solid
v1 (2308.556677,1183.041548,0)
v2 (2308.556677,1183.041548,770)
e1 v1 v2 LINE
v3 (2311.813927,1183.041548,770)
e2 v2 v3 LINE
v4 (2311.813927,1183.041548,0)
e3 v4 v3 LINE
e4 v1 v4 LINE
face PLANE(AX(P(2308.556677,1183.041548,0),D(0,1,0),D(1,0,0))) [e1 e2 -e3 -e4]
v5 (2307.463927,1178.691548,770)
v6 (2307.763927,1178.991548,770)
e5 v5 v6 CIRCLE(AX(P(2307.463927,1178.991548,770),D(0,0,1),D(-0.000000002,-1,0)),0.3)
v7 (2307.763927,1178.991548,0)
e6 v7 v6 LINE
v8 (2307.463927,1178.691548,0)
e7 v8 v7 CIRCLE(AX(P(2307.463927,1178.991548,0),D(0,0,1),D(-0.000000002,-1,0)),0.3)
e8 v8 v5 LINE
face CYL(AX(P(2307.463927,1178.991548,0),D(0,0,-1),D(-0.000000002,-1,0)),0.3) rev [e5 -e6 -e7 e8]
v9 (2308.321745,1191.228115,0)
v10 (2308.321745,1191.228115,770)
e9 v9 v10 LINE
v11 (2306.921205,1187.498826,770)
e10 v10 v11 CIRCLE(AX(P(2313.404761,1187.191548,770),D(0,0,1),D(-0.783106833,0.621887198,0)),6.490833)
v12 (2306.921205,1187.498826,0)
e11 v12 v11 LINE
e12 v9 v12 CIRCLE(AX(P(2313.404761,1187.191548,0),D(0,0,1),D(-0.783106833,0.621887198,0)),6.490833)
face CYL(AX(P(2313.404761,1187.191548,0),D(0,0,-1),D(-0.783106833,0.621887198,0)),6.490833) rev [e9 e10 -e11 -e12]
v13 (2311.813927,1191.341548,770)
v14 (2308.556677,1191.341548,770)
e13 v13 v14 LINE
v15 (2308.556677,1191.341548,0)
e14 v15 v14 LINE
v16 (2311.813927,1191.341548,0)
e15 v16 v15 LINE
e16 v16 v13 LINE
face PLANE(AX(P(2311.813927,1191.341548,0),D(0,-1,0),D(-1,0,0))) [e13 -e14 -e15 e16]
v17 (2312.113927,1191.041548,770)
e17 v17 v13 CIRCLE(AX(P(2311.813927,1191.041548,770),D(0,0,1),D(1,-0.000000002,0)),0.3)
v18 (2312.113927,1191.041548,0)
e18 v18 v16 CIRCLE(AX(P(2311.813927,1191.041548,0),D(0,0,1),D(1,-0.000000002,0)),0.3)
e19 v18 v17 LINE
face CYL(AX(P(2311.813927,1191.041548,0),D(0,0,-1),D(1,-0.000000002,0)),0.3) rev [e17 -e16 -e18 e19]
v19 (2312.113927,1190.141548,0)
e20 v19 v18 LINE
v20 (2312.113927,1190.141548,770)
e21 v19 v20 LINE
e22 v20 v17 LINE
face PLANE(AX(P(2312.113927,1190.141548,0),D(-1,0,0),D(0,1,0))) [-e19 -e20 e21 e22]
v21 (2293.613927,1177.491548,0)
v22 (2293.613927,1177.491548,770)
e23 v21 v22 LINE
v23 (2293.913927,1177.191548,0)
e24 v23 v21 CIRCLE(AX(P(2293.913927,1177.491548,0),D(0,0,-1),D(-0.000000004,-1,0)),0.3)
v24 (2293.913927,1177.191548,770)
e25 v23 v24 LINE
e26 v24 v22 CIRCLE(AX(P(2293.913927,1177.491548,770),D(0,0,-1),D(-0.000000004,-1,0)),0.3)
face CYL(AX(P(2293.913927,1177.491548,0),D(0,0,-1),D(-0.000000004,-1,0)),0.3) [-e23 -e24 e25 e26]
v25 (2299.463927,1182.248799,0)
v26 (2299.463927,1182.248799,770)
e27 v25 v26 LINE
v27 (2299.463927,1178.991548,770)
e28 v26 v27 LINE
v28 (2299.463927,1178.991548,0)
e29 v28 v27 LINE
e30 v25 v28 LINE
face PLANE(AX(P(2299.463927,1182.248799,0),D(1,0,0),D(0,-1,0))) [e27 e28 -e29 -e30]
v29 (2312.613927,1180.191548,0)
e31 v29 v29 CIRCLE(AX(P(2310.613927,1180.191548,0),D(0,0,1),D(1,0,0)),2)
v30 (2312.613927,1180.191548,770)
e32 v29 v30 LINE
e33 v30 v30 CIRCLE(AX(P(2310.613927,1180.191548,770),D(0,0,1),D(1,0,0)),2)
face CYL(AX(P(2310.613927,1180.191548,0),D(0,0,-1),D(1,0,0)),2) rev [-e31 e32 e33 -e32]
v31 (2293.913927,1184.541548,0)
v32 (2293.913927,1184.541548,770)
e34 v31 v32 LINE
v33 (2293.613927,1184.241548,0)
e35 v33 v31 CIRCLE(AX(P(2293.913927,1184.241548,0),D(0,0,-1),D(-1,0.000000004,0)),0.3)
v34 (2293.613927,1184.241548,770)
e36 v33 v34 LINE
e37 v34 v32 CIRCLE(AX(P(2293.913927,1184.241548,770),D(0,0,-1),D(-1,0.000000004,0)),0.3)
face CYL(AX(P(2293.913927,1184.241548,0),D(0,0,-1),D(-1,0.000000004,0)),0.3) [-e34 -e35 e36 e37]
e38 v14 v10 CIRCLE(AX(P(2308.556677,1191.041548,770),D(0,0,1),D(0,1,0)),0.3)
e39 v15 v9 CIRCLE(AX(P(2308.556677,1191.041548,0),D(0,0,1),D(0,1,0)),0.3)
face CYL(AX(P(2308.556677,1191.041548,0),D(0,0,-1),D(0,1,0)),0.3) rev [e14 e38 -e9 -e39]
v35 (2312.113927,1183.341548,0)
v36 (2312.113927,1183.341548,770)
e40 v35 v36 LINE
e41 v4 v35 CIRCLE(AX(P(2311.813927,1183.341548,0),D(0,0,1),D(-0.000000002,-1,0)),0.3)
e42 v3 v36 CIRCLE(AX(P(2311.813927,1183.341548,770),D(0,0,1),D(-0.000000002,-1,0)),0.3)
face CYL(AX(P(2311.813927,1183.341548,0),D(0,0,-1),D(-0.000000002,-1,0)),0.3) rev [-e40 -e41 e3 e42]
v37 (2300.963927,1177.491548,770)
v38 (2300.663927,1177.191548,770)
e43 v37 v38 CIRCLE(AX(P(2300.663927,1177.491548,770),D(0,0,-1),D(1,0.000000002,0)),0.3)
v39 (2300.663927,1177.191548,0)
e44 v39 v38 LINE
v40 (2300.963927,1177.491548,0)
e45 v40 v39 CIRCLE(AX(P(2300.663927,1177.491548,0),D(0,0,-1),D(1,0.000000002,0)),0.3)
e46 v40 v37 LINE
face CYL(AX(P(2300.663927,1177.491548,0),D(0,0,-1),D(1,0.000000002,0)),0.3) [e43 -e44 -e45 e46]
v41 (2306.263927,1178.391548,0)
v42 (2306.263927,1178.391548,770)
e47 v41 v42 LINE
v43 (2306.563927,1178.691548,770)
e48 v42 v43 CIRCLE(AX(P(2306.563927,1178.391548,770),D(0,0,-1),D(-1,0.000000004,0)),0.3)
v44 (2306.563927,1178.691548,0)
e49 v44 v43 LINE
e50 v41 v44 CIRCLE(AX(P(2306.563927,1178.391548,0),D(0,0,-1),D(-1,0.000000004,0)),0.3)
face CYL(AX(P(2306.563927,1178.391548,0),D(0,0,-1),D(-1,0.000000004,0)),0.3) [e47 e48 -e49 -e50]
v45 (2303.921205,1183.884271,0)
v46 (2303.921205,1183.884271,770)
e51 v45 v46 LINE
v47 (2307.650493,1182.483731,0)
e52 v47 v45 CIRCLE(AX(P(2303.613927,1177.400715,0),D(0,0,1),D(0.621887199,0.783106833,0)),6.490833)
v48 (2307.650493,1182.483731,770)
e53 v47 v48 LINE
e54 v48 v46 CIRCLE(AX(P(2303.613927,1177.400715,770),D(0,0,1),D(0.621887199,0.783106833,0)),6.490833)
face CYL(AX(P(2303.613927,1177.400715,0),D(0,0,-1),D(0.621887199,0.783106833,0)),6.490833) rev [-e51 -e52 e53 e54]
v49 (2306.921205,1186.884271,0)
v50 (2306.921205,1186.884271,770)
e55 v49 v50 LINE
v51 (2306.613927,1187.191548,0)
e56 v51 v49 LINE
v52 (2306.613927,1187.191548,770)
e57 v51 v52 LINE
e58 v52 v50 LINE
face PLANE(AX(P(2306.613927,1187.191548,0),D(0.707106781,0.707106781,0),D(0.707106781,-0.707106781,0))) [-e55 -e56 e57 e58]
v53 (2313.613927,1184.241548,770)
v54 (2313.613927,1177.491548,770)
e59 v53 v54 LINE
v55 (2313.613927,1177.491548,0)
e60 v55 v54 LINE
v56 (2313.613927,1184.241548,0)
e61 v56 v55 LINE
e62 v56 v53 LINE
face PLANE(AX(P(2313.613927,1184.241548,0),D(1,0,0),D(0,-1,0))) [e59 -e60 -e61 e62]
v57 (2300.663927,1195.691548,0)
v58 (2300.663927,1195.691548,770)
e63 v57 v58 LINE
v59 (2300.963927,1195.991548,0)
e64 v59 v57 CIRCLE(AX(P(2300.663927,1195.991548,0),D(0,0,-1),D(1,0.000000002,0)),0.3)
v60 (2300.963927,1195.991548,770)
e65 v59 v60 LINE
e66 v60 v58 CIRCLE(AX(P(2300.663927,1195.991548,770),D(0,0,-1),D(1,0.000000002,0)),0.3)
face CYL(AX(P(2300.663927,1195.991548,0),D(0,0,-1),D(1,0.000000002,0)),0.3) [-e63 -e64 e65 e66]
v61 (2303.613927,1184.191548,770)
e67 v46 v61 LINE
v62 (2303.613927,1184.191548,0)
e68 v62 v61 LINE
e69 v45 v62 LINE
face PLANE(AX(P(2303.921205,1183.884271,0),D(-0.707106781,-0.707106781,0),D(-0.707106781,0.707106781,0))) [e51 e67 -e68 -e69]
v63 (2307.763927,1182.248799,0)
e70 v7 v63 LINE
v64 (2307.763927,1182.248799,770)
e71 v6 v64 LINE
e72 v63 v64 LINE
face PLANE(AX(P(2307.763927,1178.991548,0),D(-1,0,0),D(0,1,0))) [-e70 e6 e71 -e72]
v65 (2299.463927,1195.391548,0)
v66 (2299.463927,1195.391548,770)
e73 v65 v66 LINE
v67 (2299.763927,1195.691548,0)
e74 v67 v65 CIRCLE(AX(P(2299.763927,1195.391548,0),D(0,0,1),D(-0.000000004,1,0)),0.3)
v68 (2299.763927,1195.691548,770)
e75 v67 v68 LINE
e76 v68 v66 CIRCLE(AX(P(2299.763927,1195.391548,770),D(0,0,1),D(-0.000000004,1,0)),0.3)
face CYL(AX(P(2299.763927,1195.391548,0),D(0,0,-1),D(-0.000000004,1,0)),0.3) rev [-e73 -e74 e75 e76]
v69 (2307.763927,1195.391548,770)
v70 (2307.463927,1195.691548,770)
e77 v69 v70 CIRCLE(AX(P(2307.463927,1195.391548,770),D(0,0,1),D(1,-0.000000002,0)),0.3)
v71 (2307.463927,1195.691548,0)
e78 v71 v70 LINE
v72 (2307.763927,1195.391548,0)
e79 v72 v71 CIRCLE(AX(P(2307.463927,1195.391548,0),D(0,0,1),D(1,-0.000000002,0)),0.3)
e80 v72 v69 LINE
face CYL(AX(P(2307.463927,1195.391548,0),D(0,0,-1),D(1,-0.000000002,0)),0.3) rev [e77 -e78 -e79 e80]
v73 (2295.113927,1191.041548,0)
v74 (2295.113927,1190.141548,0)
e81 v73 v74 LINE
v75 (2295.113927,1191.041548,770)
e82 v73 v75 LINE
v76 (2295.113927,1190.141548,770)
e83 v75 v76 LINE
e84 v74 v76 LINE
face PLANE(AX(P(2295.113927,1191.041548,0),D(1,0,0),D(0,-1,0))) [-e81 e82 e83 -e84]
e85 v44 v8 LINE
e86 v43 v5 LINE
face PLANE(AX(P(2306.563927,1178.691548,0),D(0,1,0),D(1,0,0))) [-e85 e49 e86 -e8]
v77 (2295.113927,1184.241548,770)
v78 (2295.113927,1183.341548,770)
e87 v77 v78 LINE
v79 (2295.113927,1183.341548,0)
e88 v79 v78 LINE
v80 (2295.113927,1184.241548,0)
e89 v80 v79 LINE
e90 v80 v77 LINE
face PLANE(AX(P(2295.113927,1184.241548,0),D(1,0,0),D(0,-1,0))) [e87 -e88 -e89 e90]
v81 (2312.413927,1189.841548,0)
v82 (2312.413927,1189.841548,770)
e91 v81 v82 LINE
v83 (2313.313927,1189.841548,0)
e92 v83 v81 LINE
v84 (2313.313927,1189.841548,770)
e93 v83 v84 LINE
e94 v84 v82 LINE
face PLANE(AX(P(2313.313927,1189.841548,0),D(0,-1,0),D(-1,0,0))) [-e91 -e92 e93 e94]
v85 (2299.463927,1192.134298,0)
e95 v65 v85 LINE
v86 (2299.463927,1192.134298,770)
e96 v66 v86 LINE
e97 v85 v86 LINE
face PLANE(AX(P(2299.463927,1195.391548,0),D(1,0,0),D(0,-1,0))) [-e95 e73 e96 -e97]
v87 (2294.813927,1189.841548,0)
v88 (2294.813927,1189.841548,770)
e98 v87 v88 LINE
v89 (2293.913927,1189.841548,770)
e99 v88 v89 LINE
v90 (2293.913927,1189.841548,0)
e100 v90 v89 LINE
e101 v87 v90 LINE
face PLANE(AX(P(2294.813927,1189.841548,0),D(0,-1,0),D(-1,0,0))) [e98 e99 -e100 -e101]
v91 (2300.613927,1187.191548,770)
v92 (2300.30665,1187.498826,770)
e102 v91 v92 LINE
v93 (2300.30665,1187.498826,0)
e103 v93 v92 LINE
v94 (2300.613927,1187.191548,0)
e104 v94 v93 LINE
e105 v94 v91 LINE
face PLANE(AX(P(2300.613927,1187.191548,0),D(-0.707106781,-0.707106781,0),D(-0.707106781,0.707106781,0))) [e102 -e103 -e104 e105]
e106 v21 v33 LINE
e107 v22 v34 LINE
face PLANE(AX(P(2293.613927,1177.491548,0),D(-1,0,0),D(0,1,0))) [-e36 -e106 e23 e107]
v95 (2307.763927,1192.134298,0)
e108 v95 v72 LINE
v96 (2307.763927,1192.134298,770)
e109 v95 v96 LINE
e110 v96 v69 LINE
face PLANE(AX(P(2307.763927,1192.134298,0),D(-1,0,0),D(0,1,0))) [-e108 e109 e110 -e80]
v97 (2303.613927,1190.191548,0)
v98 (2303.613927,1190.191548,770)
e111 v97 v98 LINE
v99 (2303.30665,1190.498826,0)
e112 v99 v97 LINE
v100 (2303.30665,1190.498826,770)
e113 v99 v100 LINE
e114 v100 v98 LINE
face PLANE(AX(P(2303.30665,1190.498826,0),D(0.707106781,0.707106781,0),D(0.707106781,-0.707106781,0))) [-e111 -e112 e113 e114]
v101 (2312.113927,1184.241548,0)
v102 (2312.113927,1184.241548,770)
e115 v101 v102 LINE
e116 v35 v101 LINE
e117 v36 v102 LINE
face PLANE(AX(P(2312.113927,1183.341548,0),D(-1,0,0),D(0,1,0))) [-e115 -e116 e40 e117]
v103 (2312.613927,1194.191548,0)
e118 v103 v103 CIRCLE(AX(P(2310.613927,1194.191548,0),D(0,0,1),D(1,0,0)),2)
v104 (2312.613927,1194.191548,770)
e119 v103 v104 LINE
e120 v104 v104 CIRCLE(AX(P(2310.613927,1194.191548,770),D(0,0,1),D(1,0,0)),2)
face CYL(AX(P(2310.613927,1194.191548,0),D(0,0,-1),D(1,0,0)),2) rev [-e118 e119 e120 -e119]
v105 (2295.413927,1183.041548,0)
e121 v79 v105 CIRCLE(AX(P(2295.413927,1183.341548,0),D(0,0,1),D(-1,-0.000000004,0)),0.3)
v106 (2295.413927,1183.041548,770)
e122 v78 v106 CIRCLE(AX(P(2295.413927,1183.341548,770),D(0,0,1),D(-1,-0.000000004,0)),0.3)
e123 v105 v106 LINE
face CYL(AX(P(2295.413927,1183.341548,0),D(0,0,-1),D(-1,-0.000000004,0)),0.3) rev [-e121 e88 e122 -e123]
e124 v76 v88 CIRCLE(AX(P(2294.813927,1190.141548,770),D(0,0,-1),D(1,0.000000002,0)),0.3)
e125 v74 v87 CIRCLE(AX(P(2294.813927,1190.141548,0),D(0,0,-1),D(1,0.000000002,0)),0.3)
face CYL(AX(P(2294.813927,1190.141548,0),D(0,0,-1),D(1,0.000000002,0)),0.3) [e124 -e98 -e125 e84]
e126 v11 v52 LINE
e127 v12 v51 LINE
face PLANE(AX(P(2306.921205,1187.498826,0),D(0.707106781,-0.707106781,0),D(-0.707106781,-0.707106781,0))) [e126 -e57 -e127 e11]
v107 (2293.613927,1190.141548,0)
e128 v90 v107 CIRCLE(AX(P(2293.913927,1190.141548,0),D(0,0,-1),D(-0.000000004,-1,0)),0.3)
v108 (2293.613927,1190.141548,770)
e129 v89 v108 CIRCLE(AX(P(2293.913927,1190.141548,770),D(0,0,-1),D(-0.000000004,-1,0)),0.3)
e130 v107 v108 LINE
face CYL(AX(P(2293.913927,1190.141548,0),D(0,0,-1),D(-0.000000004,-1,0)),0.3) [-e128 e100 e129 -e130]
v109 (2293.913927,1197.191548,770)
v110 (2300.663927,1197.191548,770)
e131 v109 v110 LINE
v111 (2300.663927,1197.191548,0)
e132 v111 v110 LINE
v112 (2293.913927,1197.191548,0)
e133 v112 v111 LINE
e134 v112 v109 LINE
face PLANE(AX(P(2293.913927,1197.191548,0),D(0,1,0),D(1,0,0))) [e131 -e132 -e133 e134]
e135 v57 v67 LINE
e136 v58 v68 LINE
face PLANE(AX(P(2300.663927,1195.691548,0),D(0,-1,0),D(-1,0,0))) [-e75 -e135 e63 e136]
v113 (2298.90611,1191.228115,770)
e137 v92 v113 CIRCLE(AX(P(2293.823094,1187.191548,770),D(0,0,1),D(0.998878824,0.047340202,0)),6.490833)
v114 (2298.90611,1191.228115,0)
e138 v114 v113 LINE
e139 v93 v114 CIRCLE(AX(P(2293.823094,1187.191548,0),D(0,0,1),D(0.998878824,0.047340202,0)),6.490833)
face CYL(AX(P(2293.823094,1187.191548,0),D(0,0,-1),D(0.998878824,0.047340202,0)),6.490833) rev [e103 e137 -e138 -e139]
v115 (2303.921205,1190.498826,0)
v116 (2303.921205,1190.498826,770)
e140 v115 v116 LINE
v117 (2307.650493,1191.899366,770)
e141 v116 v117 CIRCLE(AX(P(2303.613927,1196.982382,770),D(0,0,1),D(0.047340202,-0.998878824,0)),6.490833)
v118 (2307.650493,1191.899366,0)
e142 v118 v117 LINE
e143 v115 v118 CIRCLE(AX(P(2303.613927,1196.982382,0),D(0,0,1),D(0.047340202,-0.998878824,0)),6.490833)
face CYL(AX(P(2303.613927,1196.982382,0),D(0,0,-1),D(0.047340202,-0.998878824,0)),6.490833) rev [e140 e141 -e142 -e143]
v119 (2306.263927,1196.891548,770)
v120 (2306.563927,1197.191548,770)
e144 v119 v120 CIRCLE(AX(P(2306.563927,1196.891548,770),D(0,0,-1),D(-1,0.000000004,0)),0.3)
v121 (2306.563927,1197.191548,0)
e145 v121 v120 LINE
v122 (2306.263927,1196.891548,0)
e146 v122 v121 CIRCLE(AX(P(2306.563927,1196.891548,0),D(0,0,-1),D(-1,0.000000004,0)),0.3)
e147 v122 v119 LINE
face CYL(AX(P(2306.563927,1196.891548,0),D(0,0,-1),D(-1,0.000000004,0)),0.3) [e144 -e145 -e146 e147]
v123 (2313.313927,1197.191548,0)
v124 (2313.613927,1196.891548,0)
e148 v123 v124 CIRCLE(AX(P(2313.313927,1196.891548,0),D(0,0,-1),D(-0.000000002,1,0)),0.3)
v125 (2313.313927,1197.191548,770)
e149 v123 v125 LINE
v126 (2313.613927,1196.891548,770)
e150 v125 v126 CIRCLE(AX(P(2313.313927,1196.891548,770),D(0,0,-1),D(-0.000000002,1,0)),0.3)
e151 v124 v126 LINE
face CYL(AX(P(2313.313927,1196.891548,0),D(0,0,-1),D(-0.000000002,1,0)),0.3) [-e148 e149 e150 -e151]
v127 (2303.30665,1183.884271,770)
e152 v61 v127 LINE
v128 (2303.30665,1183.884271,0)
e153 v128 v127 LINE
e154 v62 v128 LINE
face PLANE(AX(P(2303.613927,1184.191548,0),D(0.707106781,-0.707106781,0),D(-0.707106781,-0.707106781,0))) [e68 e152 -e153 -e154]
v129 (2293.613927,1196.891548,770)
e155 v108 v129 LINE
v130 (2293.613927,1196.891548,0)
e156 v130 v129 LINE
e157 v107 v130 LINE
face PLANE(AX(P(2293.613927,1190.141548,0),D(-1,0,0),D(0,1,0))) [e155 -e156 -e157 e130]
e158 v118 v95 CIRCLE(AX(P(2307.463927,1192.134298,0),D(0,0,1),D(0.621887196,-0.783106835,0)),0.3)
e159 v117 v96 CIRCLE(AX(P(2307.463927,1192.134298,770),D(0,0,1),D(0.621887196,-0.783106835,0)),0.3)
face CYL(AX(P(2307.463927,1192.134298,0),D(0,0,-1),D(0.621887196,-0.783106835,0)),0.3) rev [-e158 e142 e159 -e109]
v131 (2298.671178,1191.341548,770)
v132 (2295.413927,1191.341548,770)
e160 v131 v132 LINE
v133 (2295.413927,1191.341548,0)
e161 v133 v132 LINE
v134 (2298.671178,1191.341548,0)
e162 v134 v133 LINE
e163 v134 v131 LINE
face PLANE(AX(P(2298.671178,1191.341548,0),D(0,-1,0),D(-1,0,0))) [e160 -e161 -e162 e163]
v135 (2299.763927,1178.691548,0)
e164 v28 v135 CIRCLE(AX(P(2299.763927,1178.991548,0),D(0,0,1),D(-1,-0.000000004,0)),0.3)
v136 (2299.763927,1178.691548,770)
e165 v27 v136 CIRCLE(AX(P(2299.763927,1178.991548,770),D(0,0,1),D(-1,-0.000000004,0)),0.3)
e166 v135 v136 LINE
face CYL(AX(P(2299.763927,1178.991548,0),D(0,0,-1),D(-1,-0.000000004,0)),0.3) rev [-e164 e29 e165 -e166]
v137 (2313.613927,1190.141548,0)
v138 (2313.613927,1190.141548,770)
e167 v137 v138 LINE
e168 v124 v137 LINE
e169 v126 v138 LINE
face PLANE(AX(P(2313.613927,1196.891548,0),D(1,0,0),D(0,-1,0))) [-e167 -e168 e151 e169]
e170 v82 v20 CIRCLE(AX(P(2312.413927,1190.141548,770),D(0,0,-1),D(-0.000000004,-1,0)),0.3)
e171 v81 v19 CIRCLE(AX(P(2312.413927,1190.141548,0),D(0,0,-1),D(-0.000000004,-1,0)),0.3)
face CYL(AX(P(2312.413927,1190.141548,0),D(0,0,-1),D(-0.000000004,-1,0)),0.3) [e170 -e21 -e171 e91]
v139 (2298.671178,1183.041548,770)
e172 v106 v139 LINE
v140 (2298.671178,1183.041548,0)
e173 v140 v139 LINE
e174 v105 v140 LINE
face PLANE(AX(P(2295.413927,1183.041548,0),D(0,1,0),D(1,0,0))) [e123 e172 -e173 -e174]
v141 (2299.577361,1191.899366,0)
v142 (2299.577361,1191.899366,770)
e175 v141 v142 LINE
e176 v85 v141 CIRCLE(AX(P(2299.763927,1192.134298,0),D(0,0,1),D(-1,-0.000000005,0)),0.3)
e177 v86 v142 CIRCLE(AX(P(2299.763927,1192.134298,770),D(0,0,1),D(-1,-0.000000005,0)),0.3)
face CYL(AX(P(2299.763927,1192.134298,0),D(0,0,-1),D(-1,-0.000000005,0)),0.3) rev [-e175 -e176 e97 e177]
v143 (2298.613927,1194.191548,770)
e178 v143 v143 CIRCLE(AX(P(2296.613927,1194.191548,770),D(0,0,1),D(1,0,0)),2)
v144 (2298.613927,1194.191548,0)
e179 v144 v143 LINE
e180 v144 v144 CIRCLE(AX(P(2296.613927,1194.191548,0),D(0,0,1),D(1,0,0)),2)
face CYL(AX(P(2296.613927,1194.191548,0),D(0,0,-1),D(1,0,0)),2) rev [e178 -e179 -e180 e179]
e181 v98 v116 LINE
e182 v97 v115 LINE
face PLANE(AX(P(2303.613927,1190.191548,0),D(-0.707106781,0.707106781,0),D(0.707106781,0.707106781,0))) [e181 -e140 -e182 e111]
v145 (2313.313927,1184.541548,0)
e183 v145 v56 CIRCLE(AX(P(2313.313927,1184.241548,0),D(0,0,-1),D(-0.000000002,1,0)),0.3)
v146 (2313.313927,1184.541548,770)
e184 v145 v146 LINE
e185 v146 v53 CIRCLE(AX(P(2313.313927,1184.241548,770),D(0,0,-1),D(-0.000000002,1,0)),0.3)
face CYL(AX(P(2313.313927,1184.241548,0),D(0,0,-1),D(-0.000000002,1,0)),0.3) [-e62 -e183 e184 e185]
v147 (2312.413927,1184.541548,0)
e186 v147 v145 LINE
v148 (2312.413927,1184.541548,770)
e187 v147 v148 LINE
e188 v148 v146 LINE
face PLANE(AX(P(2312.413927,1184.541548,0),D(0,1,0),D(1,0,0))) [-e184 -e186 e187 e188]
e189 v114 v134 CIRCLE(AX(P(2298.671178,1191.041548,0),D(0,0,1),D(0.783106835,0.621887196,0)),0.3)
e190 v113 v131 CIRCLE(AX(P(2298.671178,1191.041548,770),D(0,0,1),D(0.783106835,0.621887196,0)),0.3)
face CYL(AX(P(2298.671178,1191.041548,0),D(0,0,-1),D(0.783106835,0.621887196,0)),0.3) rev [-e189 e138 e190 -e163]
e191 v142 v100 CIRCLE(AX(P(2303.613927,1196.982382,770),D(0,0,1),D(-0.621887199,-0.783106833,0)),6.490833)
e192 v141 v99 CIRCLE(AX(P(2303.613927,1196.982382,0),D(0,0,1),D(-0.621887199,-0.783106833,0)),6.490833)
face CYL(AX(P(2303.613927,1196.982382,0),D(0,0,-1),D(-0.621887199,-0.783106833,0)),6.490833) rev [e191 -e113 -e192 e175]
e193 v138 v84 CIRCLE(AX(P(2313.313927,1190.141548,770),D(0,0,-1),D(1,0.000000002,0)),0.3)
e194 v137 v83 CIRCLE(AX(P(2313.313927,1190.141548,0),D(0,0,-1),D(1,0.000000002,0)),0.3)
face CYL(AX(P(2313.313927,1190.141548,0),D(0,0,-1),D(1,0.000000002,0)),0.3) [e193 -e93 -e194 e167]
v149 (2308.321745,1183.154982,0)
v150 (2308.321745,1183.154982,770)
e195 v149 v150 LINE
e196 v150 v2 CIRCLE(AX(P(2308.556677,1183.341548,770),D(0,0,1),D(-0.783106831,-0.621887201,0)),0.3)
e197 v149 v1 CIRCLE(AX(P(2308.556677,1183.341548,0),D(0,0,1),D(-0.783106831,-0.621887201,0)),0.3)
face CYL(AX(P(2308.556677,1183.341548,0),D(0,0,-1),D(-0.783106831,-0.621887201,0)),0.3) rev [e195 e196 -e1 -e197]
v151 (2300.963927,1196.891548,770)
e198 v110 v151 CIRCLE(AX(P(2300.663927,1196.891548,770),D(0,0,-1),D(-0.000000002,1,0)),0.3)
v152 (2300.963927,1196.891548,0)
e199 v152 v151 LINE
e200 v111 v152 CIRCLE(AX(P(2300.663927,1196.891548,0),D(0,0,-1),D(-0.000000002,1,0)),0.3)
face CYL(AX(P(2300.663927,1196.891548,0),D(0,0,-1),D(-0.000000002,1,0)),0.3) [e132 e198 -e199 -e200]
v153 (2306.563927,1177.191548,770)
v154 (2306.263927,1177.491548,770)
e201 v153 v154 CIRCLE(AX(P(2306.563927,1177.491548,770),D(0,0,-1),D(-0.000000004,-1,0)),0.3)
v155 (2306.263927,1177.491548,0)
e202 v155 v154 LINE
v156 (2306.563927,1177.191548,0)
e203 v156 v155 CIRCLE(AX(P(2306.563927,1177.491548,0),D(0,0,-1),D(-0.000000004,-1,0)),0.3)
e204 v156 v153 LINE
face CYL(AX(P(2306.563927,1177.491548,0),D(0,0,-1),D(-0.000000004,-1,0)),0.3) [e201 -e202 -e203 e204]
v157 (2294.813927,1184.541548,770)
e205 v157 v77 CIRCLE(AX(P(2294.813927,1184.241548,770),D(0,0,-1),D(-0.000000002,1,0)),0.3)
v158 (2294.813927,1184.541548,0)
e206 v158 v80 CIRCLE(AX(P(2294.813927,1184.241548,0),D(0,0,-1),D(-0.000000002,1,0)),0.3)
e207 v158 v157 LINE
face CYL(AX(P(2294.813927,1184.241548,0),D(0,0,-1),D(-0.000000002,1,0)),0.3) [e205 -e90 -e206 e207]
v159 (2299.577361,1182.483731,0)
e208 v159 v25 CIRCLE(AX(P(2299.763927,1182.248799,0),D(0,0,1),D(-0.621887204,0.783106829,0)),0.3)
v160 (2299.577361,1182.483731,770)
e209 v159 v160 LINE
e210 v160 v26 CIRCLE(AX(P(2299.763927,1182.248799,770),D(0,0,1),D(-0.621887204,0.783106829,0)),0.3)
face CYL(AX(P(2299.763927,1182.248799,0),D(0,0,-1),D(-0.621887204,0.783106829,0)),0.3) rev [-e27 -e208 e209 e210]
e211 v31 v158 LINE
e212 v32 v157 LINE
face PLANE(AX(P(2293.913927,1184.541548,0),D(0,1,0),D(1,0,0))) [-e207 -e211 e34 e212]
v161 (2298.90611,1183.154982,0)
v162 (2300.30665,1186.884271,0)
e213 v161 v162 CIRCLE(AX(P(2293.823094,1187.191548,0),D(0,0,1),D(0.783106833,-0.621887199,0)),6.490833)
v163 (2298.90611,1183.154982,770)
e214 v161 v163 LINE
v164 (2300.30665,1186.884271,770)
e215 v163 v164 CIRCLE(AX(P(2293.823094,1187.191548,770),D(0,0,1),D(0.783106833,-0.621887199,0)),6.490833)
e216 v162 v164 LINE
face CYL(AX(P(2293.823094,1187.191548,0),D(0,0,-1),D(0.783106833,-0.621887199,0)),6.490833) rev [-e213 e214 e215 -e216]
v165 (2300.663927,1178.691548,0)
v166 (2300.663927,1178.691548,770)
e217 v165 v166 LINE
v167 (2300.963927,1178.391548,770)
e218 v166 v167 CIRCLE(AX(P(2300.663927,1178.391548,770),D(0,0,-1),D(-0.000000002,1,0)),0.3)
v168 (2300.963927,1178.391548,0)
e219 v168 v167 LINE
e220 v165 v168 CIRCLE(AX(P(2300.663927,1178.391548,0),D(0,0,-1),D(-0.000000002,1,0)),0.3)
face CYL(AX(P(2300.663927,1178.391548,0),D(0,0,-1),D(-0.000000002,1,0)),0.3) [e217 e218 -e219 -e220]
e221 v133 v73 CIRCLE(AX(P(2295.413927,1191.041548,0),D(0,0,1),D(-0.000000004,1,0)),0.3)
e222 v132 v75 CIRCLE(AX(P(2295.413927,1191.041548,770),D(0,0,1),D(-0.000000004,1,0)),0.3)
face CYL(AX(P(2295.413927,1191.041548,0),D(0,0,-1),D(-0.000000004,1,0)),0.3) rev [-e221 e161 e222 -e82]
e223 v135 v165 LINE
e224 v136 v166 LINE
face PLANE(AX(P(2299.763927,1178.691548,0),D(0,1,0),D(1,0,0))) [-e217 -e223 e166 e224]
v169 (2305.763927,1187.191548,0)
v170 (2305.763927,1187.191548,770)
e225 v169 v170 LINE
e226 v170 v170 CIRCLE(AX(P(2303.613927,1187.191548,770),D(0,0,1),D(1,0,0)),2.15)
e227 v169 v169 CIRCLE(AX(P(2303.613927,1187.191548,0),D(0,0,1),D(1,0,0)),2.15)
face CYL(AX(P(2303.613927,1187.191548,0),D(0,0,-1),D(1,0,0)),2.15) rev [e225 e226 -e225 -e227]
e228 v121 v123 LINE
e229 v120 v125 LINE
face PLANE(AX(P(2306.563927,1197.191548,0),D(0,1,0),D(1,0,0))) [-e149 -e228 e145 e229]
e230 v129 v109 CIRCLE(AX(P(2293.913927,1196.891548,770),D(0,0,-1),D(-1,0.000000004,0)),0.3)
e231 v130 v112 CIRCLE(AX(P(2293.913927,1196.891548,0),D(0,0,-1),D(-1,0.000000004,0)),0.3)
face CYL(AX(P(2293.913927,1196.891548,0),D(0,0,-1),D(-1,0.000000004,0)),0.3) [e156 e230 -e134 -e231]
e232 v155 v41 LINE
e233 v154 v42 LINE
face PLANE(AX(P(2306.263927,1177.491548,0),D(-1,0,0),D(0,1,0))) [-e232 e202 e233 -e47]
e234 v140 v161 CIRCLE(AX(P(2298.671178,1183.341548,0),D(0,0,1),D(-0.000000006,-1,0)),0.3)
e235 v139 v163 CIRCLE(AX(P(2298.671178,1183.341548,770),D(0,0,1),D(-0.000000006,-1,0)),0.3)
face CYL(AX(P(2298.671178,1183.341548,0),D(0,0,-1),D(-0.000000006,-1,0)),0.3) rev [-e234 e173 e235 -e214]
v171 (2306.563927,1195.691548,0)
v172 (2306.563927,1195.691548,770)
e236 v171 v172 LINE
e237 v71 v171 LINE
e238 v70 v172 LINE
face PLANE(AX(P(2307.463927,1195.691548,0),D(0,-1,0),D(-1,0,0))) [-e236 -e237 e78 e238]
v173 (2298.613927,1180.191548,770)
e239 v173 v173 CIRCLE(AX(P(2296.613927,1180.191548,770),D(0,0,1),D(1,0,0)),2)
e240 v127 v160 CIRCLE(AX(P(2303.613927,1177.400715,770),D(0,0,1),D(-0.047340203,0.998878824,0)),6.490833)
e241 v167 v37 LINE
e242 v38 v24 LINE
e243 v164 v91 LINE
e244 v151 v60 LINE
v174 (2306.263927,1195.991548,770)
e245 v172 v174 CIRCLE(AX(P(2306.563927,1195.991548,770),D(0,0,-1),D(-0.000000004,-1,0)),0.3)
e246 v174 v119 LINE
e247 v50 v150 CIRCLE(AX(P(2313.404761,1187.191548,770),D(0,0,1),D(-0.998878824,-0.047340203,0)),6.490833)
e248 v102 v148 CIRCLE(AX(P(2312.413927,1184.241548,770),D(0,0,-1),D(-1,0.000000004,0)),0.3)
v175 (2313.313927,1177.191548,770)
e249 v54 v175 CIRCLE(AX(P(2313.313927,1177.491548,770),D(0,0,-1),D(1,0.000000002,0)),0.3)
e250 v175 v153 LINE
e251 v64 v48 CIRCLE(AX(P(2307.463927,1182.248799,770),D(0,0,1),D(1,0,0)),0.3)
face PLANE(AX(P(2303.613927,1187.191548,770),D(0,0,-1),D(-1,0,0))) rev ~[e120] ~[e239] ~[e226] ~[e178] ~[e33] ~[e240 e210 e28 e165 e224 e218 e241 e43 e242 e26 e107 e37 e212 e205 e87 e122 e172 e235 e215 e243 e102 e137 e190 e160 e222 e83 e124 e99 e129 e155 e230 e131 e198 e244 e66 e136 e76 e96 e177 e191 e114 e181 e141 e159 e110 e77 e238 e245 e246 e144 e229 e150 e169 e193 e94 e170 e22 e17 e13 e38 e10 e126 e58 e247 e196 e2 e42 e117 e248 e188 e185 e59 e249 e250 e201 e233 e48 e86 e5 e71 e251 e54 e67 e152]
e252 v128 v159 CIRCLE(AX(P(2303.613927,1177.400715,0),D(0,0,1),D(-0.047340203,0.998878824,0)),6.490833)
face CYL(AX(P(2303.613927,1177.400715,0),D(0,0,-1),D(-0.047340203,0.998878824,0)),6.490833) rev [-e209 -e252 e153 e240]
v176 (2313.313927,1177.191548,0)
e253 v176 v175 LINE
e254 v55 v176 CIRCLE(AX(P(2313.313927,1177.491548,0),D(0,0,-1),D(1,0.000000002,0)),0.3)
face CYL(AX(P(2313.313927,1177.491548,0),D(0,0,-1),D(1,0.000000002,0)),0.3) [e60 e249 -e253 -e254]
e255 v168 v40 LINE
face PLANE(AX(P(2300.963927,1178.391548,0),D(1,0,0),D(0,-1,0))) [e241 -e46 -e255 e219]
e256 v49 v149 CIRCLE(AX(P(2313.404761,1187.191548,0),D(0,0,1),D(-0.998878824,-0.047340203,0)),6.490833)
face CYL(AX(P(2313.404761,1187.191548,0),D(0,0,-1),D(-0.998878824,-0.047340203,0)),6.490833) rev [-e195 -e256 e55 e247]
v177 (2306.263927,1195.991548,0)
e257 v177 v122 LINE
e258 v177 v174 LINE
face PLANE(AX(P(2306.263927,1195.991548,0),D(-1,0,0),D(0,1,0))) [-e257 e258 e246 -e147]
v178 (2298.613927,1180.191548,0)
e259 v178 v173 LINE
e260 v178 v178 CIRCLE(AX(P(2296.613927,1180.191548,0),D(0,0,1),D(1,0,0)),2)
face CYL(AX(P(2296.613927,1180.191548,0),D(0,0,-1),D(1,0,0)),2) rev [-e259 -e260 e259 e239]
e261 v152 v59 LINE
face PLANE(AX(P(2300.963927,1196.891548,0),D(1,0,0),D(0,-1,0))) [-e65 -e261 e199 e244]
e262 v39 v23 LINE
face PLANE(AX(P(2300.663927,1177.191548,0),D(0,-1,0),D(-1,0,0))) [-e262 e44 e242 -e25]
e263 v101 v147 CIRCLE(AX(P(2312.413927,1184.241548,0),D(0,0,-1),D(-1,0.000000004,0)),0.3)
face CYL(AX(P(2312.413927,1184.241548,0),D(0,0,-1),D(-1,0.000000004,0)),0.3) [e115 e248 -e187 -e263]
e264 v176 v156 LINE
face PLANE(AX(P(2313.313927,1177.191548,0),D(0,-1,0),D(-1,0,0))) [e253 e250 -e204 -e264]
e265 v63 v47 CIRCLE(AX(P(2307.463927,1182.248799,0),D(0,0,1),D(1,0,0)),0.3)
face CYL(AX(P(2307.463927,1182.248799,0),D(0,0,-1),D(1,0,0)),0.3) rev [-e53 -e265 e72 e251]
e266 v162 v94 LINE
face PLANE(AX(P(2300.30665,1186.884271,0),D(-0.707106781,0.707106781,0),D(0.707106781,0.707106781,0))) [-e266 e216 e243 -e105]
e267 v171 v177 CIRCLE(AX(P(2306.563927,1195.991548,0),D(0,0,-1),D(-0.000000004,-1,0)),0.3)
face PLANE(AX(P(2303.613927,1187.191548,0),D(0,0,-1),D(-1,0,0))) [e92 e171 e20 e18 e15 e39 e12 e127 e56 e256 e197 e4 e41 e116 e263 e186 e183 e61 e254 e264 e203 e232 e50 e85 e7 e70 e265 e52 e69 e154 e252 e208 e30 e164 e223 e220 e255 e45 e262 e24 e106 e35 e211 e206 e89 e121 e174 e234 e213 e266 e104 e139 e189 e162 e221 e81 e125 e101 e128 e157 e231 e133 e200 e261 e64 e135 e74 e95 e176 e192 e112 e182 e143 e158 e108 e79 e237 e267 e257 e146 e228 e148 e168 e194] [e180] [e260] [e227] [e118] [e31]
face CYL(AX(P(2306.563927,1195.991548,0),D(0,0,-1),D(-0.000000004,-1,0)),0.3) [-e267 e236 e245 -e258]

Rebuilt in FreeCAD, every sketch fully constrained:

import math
import FreeCAD as App
import Part
import Sketcher

V = App.Vector

doc = App.newDocument("Part")
params = doc.addObject("Spreadsheet::Sheet", "Params")
for row, (alias, value) in enumerate([
    ("sketch1_diameter", "4 mm"),
    ("sketch1_diameter2", "4.3 mm"),
    ("sketch1_radius", "0.3 mm"),
    ("sketch1_width", "0.9 mm"),
    ("sketch1_width2", "6.75 mm"),
    ("pad1_length", "770 mm"),
], start=1):
    params.set(f"A{row}", alias)
    params.set(f"B{row}", "=" + value)
    params.setAlias(f"B{row}", alias)

body = doc.addObject("PartDesign::Body", "Body")

sketch1 = body.newObject("Sketcher::SketchObject", "Sketch")
sketch1.AttachmentSupport = (doc.getObject("XY_Plane"), [""])
sketch1.MapMode = "FlatFace"
sketch1.addGeometry([
    Part.LineSegment(V(2307.76, 1195.39, 0), V(2307.76, 1192.13, 0)),
    Part.ArcOfCircle(Part.Circle(V(2307.46, 1192.13, 0), V(0, 0, 1), 0.3), math.radians(-52), math.radians(0)),
    Part.ArcOfCircle(Part.Circle(V(2303.61, 1196.98, 0), V(0, 0, 1), 6.49), math.radians(-87), math.radians(-52)),
    Part.LineSegment(V(2303.92, 1190.5, 0), V(2303.61, 1190.19, 0)),
    Part.LineSegment(V(2303.61, 1190.19, 0), V(2303.31, 1190.5, 0)),
    Part.ArcOfCircle(Part.Circle(V(2303.61, 1196.98, 0), V(0, 0, 1), 6.49), math.radians(-128), math.radians(-93)),
    Part.ArcOfCircle(Part.Circle(V(2299.76, 1192.13, 0), V(0, 0, 1), 0.3), math.radians(-180), math.radians(-128)),
    Part.LineSegment(V(2299.46, 1192.13, 0), V(2299.46, 1195.39, 0)),
    Part.ArcOfCircle(Part.Circle(V(2299.76, 1195.39, 0), V(0, 0, 1), 0.3), math.radians(90), math.radians(180)),
    Part.LineSegment(V(2299.76, 1195.69, 0), V(2300.66, 1195.69, 0)),
    Part.ArcOfCircle(Part.Circle(V(2300.66, 1195.99, 0), V(0, 0, 1), 0.3), math.radians(-90), math.radians(0)),
    Part.LineSegment(V(2300.96, 1195.99, 0), V(2300.96, 1196.89, 0)),
    Part.ArcOfCircle(Part.Circle(V(2300.66, 1196.89, 0), V(0, 0, 1), 0.3), math.radians(0), math.radians(90)),
    Part.LineSegment(V(2300.66, 1197.19, 0), V(2293.91, 1197.19, 0)),
    Part.ArcOfCircle(Part.Circle(V(2293.91, 1196.89, 0), V(0, 0, 1), 0.3), math.radians(90), math.radians(180)),
    Part.LineSegment(V(2293.61, 1196.89, 0), V(2293.61, 1190.14, 0)),
    Part.ArcOfCircle(Part.Circle(V(2293.91, 1190.14, 0), V(0, 0, 1), 0.3), math.radians(-180), math.radians(-90)),
    Part.LineSegment(V(2293.91, 1189.84, 0), V(2294.81, 1189.84, 0)),
    Part.ArcOfCircle(Part.Circle(V(2294.81, 1190.14, 0), V(0, 0, 1), 0.3), math.radians(-90), math.radians(0)),
    Part.LineSegment(V(2295.11, 1190.14, 0), V(2295.11, 1191.04, 0)),
    Part.ArcOfCircle(Part.Circle(V(2295.41, 1191.04, 0), V(0, 0, 1), 0.3), math.radians(90), math.radians(180)),
    Part.LineSegment(V(2295.41, 1191.34, 0), V(2298.67, 1191.34, 0)),
    Part.ArcOfCircle(Part.Circle(V(2298.67, 1191.04, 0), V(0, 0, 1), 0.3), math.radians(38), math.radians(90)),
    Part.ArcOfCircle(Part.Circle(V(2293.82, 1187.19, 0), V(0, 0, 1), 6.49), math.radians(3), math.radians(38)),
    Part.LineSegment(V(2300.31, 1187.5, 0), V(2300.61, 1187.19, 0)),
    Part.LineSegment(V(2300.61, 1187.19, 0), V(2300.31, 1186.88, 0)),
    Part.ArcOfCircle(Part.Circle(V(2293.82, 1187.19, 0), V(0, 0, 1), 6.49), math.radians(-38), math.radians(-3)),
    Part.ArcOfCircle(Part.Circle(V(2298.67, 1183.34, 0), V(0, 0, 1), 0.3), math.radians(-90), math.radians(-38)),
    Part.LineSegment(V(2298.67, 1183.04, 0), V(2295.41, 1183.04, 0)),
    Part.ArcOfCircle(Part.Circle(V(2295.41, 1183.34, 0), V(0, 0, 1), 0.3), math.radians(-180), math.radians(-90)),
    Part.LineSegment(V(2295.11, 1183.34, 0), V(2295.11, 1184.24, 0)),
    Part.ArcOfCircle(Part.Circle(V(2294.81, 1184.24, 0), V(0, 0, 1), 0.3), math.radians(0), math.radians(90)),
    Part.LineSegment(V(2294.81, 1184.54, 0), V(2293.91, 1184.54, 0)),
    Part.ArcOfCircle(Part.Circle(V(2293.91, 1184.24, 0), V(0, 0, 1), 0.3), math.radians(90), math.radians(180)),
    Part.LineSegment(V(2293.61, 1184.24, 0), V(2293.61, 1177.49, 0)),
    Part.ArcOfCircle(Part.Circle(V(2293.91, 1177.49, 0), V(0, 0, 1), 0.3), math.radians(-180), math.radians(-90)),
    Part.LineSegment(V(2293.91, 1177.19, 0), V(2300.66, 1177.19, 0)),
    Part.ArcOfCircle(Part.Circle(V(2300.66, 1177.49, 0), V(0, 0, 1), 0.3), math.radians(-90), math.radians(0)),
    Part.LineSegment(V(2300.96, 1177.49, 0), V(2300.96, 1178.39, 0)),
    Part.ArcOfCircle(Part.Circle(V(2300.66, 1178.39, 0), V(0, 0, 1), 0.3), math.radians(0), math.radians(90)),
    Part.LineSegment(V(2300.66, 1178.69, 0), V(2299.76, 1178.69, 0)),
    Part.ArcOfCircle(Part.Circle(V(2299.76, 1178.99, 0), V(0, 0, 1), 0.3), math.radians(-180), math.radians(-90)),
    Part.LineSegment(V(2299.46, 1178.99, 0), V(2299.46, 1182.25, 0)),
    Part.ArcOfCircle(Part.Circle(V(2299.76, 1182.25, 0), V(0, 0, 1), 0.3), math.radians(128), math.radians(180)),
    Part.ArcOfCircle(Part.Circle(V(2303.61, 1177.4, 0), V(0, 0, 1), 6.49), math.radians(93), math.radians(128)),
    Part.LineSegment(V(2303.31, 1183.88, 0), V(2303.61, 1184.19, 0)),
    Part.LineSegment(V(2303.61, 1184.19, 0), V(2303.92, 1183.88, 0)),
    Part.ArcOfCircle(Part.Circle(V(2303.61, 1177.4, 0), V(0, 0, 1), 6.49), math.radians(52), math.radians(87)),
    Part.ArcOfCircle(Part.Circle(V(2307.46, 1182.25, 0), V(0, 0, 1), 0.3), math.radians(0), math.radians(52)),
    Part.LineSegment(V(2307.76, 1182.25, 0), V(2307.76, 1178.99, 0)),
    Part.ArcOfCircle(Part.Circle(V(2307.46, 1178.99, 0), V(0, 0, 1), 0.3), math.radians(-90), math.radians(0)),
    Part.LineSegment(V(2307.46, 1178.69, 0), V(2306.56, 1178.69, 0)),
    Part.ArcOfCircle(Part.Circle(V(2306.56, 1178.39, 0), V(0, 0, 1), 0.3), math.radians(90), math.radians(180)),
    Part.LineSegment(V(2306.26, 1178.39, 0), V(2306.26, 1177.49, 0)),
    Part.ArcOfCircle(Part.Circle(V(2306.56, 1177.49, 0), V(0, 0, 1), 0.3), math.radians(-180), math.radians(-90)),
    Part.LineSegment(V(2306.56, 1177.19, 0), V(2313.31, 1177.19, 0)),
    Part.ArcOfCircle(Part.Circle(V(2313.31, 1177.49, 0), V(0, 0, 1), 0.3), math.radians(-90), math.radians(0)),
    Part.LineSegment(V(2313.61, 1177.49, 0), V(2313.61, 1184.24, 0)),
    Part.ArcOfCircle(Part.Circle(V(2313.31, 1184.24, 0), V(0, 0, 1), 0.3), math.radians(0), math.radians(90)),
    Part.LineSegment(V(2313.31, 1184.54, 0), V(2312.41, 1184.54, 0)),
    Part.ArcOfCircle(Part.Circle(V(2312.41, 1184.24, 0), V(0, 0, 1), 0.3), math.radians(90), math.radians(180)),
    Part.LineSegment(V(2312.11, 1184.24, 0), V(2312.11, 1183.34, 0)),
    Part.ArcOfCircle(Part.Circle(V(2311.81, 1183.34, 0), V(0, 0, 1), 0.3), math.radians(-90), math.radians(0)),
    Part.LineSegment(V(2311.81, 1183.04, 0), V(2308.56, 1183.04, 0)),
    Part.ArcOfCircle(Part.Circle(V(2308.56, 1183.34, 0), V(0, 0, 1), 0.3), math.radians(-142), math.radians(-90)),
    Part.ArcOfCircle(Part.Circle(V(2313.4, 1187.19, 0), V(0, 0, 1), 6.49), math.radians(-177), math.radians(-142)),
    Part.LineSegment(V(2306.92, 1186.88, 0), V(2306.61, 1187.19, 0)),
    Part.LineSegment(V(2306.61, 1187.19, 0), V(2306.92, 1187.5, 0)),
    Part.ArcOfCircle(Part.Circle(V(2313.4, 1187.19, 0), V(0, 0, 1), 6.49), math.radians(142), math.radians(177)),
    Part.ArcOfCircle(Part.Circle(V(2308.56, 1191.04, 0), V(0, 0, 1), 0.3), math.radians(90), math.radians(142)),
    Part.LineSegment(V(2308.56, 1191.34, 0), V(2311.81, 1191.34, 0)),
    Part.ArcOfCircle(Part.Circle(V(2311.81, 1191.04, 0), V(0, 0, 1), 0.3), math.radians(0), math.radians(90)),
    Part.LineSegment(V(2312.11, 1191.04, 0), V(2312.11, 1190.14, 0)),
    Part.ArcOfCircle(Part.Circle(V(2312.41, 1190.14, 0), V(0, 0, 1), 0.3), math.radians(-180), math.radians(-90)),
    Part.LineSegment(V(2312.41, 1189.84, 0), V(2313.31, 1189.84, 0)),
    Part.ArcOfCircle(Part.Circle(V(2313.31, 1190.14, 0), V(0, 0, 1), 0.3), math.radians(-90), math.radians(0)),
    Part.LineSegment(V(2313.61, 1190.14, 0), V(2313.61, 1196.89, 0)),
    Part.ArcOfCircle(Part.Circle(V(2313.31, 1196.89, 0), V(0, 0, 1), 0.3), math.radians(0), math.radians(90)),
    Part.LineSegment(V(2313.31, 1197.19, 0), V(2306.56, 1197.19, 0)),
    Part.ArcOfCircle(Part.Circle(V(2306.56, 1196.89, 0), V(0, 0, 1), 0.3), math.radians(90), math.radians(180)),
    Part.LineSegment(V(2306.26, 1196.89, 0), V(2306.26, 1195.99, 0)),
    Part.ArcOfCircle(Part.Circle(V(2306.56, 1195.99, 0), V(0, 0, 1), 0.3), math.radians(-180), math.radians(-90)),
    Part.LineSegment(V(2306.56, 1195.69, 0), V(2307.46, 1195.69, 0)),
    Part.ArcOfCircle(Part.Circle(V(2307.46, 1195.39, 0), V(0, 0, 1), 0.3), math.radians(0), math.radians(90)),
    Part.Circle(V(2310.61, 1180.19, 0), V(0, 0, 1), 2),
    Part.Circle(V(2296.61, 1180.19, 0), V(0, 0, 1), 2),
    Part.Circle(V(2310.61, 1194.19, 0), V(0, 0, 1), 2),
    Part.Circle(V(2303.61, 1187.19, 0), V(0, 0, 1), 2.15),
    Part.Circle(V(2296.61, 1194.19, 0), V(0, 0, 1), 2),
], False)
sketch1.addConstraint([
    Sketcher.Constraint("Tangent", 0, 2, 1, 2),
    Sketcher.Constraint("Tangent", 1, 1, 2, 2),
    Sketcher.Constraint("Coincident", 2, 1, 3, 1),
    Sketcher.Constraint("Coincident", 3, 2, 4, 1),
    Sketcher.Constraint("Coincident", 4, 2, 5, 2),
    Sketcher.Constraint("Tangent", 5, 1, 6, 2),
    Sketcher.Constraint("Tangent", 6, 1, 7, 1),
    Sketcher.Constraint("Tangent", 7, 2, 8, 2),
    Sketcher.Constraint("Tangent", 8, 1, 9, 1),
    Sketcher.Constraint("Tangent", 9, 2, 10, 1),
    Sketcher.Constraint("Tangent", 10, 2, 11, 1),
    Sketcher.Constraint("Tangent", 11, 2, 12, 1),
    Sketcher.Constraint("Tangent", 12, 2, 13, 1),
    Sketcher.Constraint("Tangent", 13, 2, 14, 1),
    Sketcher.Constraint("Tangent", 14, 2, 15, 1),
    Sketcher.Constraint("Tangent", 15, 2, 16, 1),
    Sketcher.Constraint("Tangent", 16, 2, 17, 1),
    Sketcher.Constraint("Tangent", 17, 2, 18, 1),
    Sketcher.Constraint("Tangent", 18, 2, 19, 1),
    Sketcher.Constraint("Tangent", 19, 2, 20, 2),
    Sketcher.Constraint("Tangent", 20, 1, 21, 1),
    Sketcher.Constraint("Tangent", 21, 2, 22, 2),
    Sketcher.Constraint("Tangent", 22, 1, 23, 2),
    Sketcher.Constraint("Coincident", 23, 1, 24, 1),
    Sketcher.Constraint("Coincident", 24, 2, 25, 1),
    Sketcher.Constraint("Coincident", 25, 2, 26, 2),
    Sketcher.Constraint("Tangent", 26, 1, 27, 2),
    Sketcher.Constraint("Tangent", 27, 1, 28, 1),
    Sketcher.Constraint("Tangent", 28, 2, 29, 2),
    Sketcher.Constraint("Tangent", 29, 1, 30, 1),
    Sketcher.Constraint("Tangent", 30, 2, 31, 1),
    Sketcher.Constraint("Tangent", 31, 2, 32, 1),
    Sketcher.Constraint("Tangent", 32, 2, 33, 1),
    Sketcher.Constraint("Tangent", 33, 2, 34, 1),
    Sketcher.Constraint("Tangent", 34, 2, 35, 1),
    Sketcher.Constraint("Tangent", 35, 2, 36, 1),
    Sketcher.Constraint("Tangent", 36, 2, 37, 1),
    Sketcher.Constraint("Tangent", 37, 2, 38, 1),
    Sketcher.Constraint("Tangent", 38, 2, 39, 1),
    Sketcher.Constraint("Tangent", 39, 2, 40, 1),
    Sketcher.Constraint("Tangent", 40, 2, 41, 2),
    Sketcher.Constraint("Tangent", 41, 1, 42, 1),
    Sketcher.Constraint("Tangent", 42, 2, 43, 2),
    Sketcher.Constraint("Tangent", 43, 1, 44, 2),
    Sketcher.Constraint("Coincident", 44, 1, 45, 1),
    Sketcher.Constraint("Coincident", 45, 2, 46, 1),
    Sketcher.Constraint("Coincident", 46, 2, 47, 2),
    Sketcher.Constraint("Tangent", 47, 1, 48, 2),
    Sketcher.Constraint("Tangent", 48, 1, 49, 1),
    Sketcher.Constraint("Tangent", 49, 2, 50, 2),
    Sketcher.Constraint("Tangent", 50, 1, 51, 1),
    Sketcher.Constraint("Tangent", 51, 2, 52, 1),
    Sketcher.Constraint("Tangent", 52, 2, 53, 1),
    Sketcher.Constraint("Tangent", 53, 2, 54, 1),
    Sketcher.Constraint("Tangent", 54, 2, 55, 1),
    Sketcher.Constraint("Tangent", 55, 2, 56, 1),
    Sketcher.Constraint("Tangent", 56, 2, 57, 1),
    Sketcher.Constraint("Tangent", 57, 2, 58, 1),
    Sketcher.Constraint("Tangent", 58, 2, 59, 1),
    Sketcher.Constraint("Tangent", 59, 2, 60, 1),
    Sketcher.Constraint("Tangent", 60, 2, 61, 1),
    Sketcher.Constraint("Tangent", 61, 2, 62, 2),
    Sketcher.Constraint("Tangent", 62, 1, 63, 1),
    Sketcher.Constraint("Tangent", 63, 2, 64, 2),
    Sketcher.Constraint("Tangent", 64, 1, 65, 2),
    Sketcher.Constraint("Coincident", 65, 1, 66, 1),
    Sketcher.Constraint("Coincident", 66, 2, 67, 1),
    Sketcher.Constraint("Coincident", 67, 2, 68, 2),
    Sketcher.Constraint("Tangent", 68, 1, 69, 2),
    Sketcher.Constraint("Tangent", 69, 1, 70, 1),
    Sketcher.Constraint("Tangent", 70, 2, 71, 2),
    Sketcher.Constraint("Tangent", 71, 1, 72, 1),
    Sketcher.Constraint("Tangent", 72, 2, 73, 1),
    Sketcher.Constraint("Tangent", 73, 2, 74, 1),
    Sketcher.Constraint("Tangent", 74, 2, 75, 1),
    Sketcher.Constraint("Tangent", 75, 2, 76, 1),
    Sketcher.Constraint("Tangent", 76, 2, 77, 1),
    Sketcher.Constraint("Tangent", 77, 2, 78, 1),
    Sketcher.Constraint("Tangent", 78, 2, 79, 1),
    Sketcher.Constraint("Tangent", 79, 2, 80, 1),
    Sketcher.Constraint("Tangent", 80, 2, 81, 1),
    Sketcher.Constraint("Tangent", 81, 2, 82, 1),
    Sketcher.Constraint("Tangent", 82, 2, 83, 2),
    Sketcher.Constraint("Tangent", 83, 1, 0, 1),
    Sketcher.Constraint("Vertical", 0),
    Sketcher.Constraint("Vertical", 7),
    Sketcher.Constraint("Horizontal", 9),
    Sketcher.Constraint("Vertical", 11),
    Sketcher.Constraint("Horizontal", 13),
    Sketcher.Constraint("Vertical", 15),
    Sketcher.Constraint("Horizontal", 17),
    Sketcher.Constraint("Vertical", 19),
    Sketcher.Constraint("Horizontal", 21),
    Sketcher.Constraint("Horizontal", 28),
    Sketcher.Constraint("Vertical", 30),
    Sketcher.Constraint("Horizontal", 32),
    Sketcher.Constraint("Vertical", 34),
    Sketcher.Constraint("Horizontal", 36),
    Sketcher.Constraint("Vertical", 38),
    Sketcher.Constraint("Horizontal", 40),
    Sketcher.Constraint("Vertical", 42),
    Sketcher.Constraint("Vertical", 49),
    Sketcher.Constraint("Horizontal", 51),
    Sketcher.Constraint("Vertical", 53),
    Sketcher.Constraint("Horizontal", 55),
    Sketcher.Constraint("Vertical", 57),
    Sketcher.Constraint("Horizontal", 59),
    Sketcher.Constraint("Vertical", 61),
    Sketcher.Constraint("Horizontal", 63),
    Sketcher.Constraint("Horizontal", 70),
    Sketcher.Constraint("Vertical", 72),
    Sketcher.Constraint("Horizontal", 74),
    Sketcher.Constraint("Vertical", 76),
    Sketcher.Constraint("Horizontal", 78),
    Sketcher.Constraint("Vertical", 80),
    Sketcher.Constraint("Horizontal", 82),
    Sketcher.Constraint("Coincident", 5, 3, 2, 3),
    Sketcher.Constraint("Coincident", 26, 3, 23, 3),
    Sketcher.Constraint("Coincident", 47, 3, 44, 3),
    Sketcher.Constraint("Coincident", 68, 3, 65, 3),
    Sketcher.Constraint("Equal", 2, 5),
    Sketcher.Constraint("Equal", 1, 6),
    Sketcher.Constraint("Equal", 6, 8),
    Sketcher.Constraint("Equal", 8, 10),
    Sketcher.Constraint("Equal", 10, 12),
    Sketcher.Constraint("Equal", 12, 14),
    Sketcher.Constraint("Equal", 14, 16),
    Sketcher.Constraint("Equal", 16, 18),
    Sketcher.Constraint("Equal", 18, 20),
    Sketcher.Constraint("Equal", 20, 22),
    Sketcher.Constraint("Equal", 5, 23),
    Sketcher.Constraint("Equal", 23, 26),
    Sketcher.Constraint("Equal", 22, 27),
    Sketcher.Constraint("Equal", 27, 29),
    Sketcher.Constraint("Equal", 29, 31),
    Sketcher.Constraint("Equal", 31, 33),
    Sketcher.Constraint("Equal", 33, 35),
    Sketcher.Constraint("Equal", 35, 37),
    Sketcher.Constraint("Equal", 37, 39),
    Sketcher.Constraint("Equal", 39, 41),
    Sketcher.Constraint("Equal", 41, 43),
    Sketcher.Constraint("Equal", 26, 44),
    Sketcher.Constraint("Equal", 44, 47),
    Sketcher.Constraint("Equal", 43, 48),
    Sketcher.Constraint("Equal", 48, 50),
    Sketcher.Constraint("Equal", 50, 52),
    Sketcher.Constraint("Equal", 52, 54),
    Sketcher.Constraint("Equal", 54, 56),
    Sketcher.Constraint("Equal", 56, 58),
    Sketcher.Constraint("Equal", 58, 60),
    Sketcher.Constraint("Equal", 60, 62),
    Sketcher.Constraint("Equal", 62, 64),
    Sketcher.Constraint("Equal", 47, 65),
    Sketcher.Constraint("Equal", 65, 68),
    Sketcher.Constraint("Equal", 64, 69),
    Sketcher.Constraint("Equal", 69, 71),
    Sketcher.Constraint("Equal", 71, 73),
    Sketcher.Constraint("Equal", 73, 75),
    Sketcher.Constraint("Equal", 75, 77),
    Sketcher.Constraint("Equal", 77, 79),
    Sketcher.Constraint("Equal", 79, 81),
    Sketcher.Constraint("Equal", 81, 83),
    Sketcher.Constraint("Equal", 84, 85),
    Sketcher.Constraint("Equal", 85, 86),
    Sketcher.Constraint("Equal", 86, 88),
    Sketcher.Constraint("Perpendicular", 3, 4),
    Sketcher.Constraint("Parallel", 4, 24),
    Sketcher.Constraint("Perpendicular", 24, 25),
    Sketcher.Constraint("Parallel", 25, 45),
    Sketcher.Constraint("Perpendicular", 45, 46),
    Sketcher.Constraint("Parallel", 46, 66),
    Sketcher.Constraint("Perpendicular", 66, 67),
    Sketcher.Constraint("Horizontal", 1, 3, 6, 3),
    Sketcher.Constraint("Horizontal", 43, 3, 48, 3),
    Sketcher.Constraint("Horizontal", 41, 3, 50, 3),
    Sketcher.Constraint("Horizontal", 37, 3, 54, 3),
    Sketcher.Constraint("Horizontal", 33, 3, 58, 3),
    Sketcher.Constraint("Horizontal", 29, 3, 62, 3),
    Sketcher.Constraint("Horizontal", 26, 3, 65, 3),
    Sketcher.Constraint("Horizontal", 22, 3, 69, 3),
    Sketcher.Constraint("Horizontal", 18, 3, 73, 3),
    Sketcher.Constraint("Horizontal", 14, 3, 77, 3),
    Sketcher.Constraint("Horizontal", 10, 3, 81, 3),
    Sketcher.Constraint("Horizontal", 84, 3, 85, 3),
    Sketcher.Constraint("Horizontal", 68, 3, 87, 3),
    Sketcher.Constraint("Horizontal", 86, 3, 88, 3),
    Sketcher.Constraint("Horizontal", 2, 1, 4, 2),
    Sketcher.Constraint("Horizontal", 87, 3, 24, 2),
    Sketcher.Constraint("Horizontal", 44, 1, 46, 2),
    Sketcher.Constraint("Horizontal", 25, 2, 65, 1),
    Sketcher.Constraint("Horizontal", 24, 2, 66, 2),
    Sketcher.Constraint("Horizontal", 23, 1, 67, 2),
    Sketcher.Constraint("Vertical", 22, 3, 27, 3),
    Sketcher.Constraint("Vertical", 20, 3, 29, 3),
    Sketcher.Constraint("Vertical", 16, 3, 33, 3),
    Sketcher.Constraint("Vertical", 12, 3, 37, 3),
    Sketcher.Constraint("Vertical", 8, 3, 41, 3),
    Sketcher.Constraint("Vertical", 5, 3, 44, 3),
    Sketcher.Constraint("Vertical", 62, 3, 71, 3),
    Sketcher.Constraint("Vertical", 58, 3, 75, 3),
    Sketcher.Constraint("Vertical", 54, 3, 79, 3),
    Sketcher.Constraint("Vertical", 84, 3, 86, 3),
    Sketcher.Constraint("Vertical", 47, 3, 87, 3),
    Sketcher.Constraint("Vertical", 85, 3, 88, 3),
    Sketcher.Constraint("Vertical", 4, 2, 44, 1),
    Sketcher.Constraint("Equal", 9, 17),
    Sketcher.Constraint("Equal", 40, 51),
    Sketcher.Constraint("Equal", 36, 55),
    Sketcher.Constraint("Equal", 51, 59),
    Sketcher.Constraint("Equal", 28, 63),
    Sketcher.Constraint("Equal", 70, 0),
    Sketcher.Constraint("Equal", 82, 11),
    Sketcher.Constraint("Equal", 78, 15),
    Sketcher.Constraint("Equal", 11, 19),
    Sketcher.Constraint("Equal", 19, 30),
    Sketcher.Constraint("Equal", 15, 34),
    Sketcher.Constraint("Equal", 30, 38),
    Sketcher.Constraint("Equal", 7, 42),
    Sketcher.Constraint("Equal", 4, 24),
    Sketcher.Constraint("Diameter", 84, 4.0),
    Sketcher.Constraint("Diameter", 87, 4.3),
    Sketcher.Constraint("Radius", 1, 0.3),
    Sketcher.Constraint("DistanceX", 9, 1, 9, 2, 0.9),
    Sketcher.Constraint("DistanceX", 13, 2, 13, 1, 6.75),
    Sketcher.Constraint("Radius", 2, 6.490833),
    Sketcher.Constraint("DistanceX", 21, 1, 21, 2, 3.257251),
    Sketcher.Constraint("DistanceY", -1, 1, 43, 3, 1182.248799),
    Sketcher.Constraint("DistanceY", -1, 1, 2, 3, 1196.982382),
    Sketcher.Constraint("DistanceY", -1, 1, 8, 3, 1195.391548),
    Sketcher.Constraint("DistanceX", -1, 1, 65, 3, 2313.404761),
    Sketcher.Constraint("DistanceY", -1, 1, 84, 3, 1180.191548),
    Sketcher.Constraint("DistanceY", -1, 1, 86, 3, 1194.191548),
    Sketcher.Constraint("DistanceY", -1, 1, 3, 2, 1190.191548),
    Sketcher.Constraint("DistanceX", -1, 1, 84, 3, 2310.613927),
    Sketcher.Constraint("DistanceX", -1, 1, 85, 3, 2296.613927),
])
sketch1.setExpression("Constraints[219]", "Params.sketch1_diameter")
sketch1.setExpression("Constraints[220]", "Params.sketch1_diameter2")
sketch1.setExpression("Constraints[221]", "Params.sketch1_radius")
sketch1.setExpression("Constraints[222]", "Params.sketch1_width")
sketch1.setExpression("Constraints[223]", "Params.sketch1_width2")
pad1 = body.newObject("PartDesign::Pad", "Pad")
pad1.Profile = sketch1
pad1.setExpression("Length", "Params.pad1_length")

doc.recompute()
